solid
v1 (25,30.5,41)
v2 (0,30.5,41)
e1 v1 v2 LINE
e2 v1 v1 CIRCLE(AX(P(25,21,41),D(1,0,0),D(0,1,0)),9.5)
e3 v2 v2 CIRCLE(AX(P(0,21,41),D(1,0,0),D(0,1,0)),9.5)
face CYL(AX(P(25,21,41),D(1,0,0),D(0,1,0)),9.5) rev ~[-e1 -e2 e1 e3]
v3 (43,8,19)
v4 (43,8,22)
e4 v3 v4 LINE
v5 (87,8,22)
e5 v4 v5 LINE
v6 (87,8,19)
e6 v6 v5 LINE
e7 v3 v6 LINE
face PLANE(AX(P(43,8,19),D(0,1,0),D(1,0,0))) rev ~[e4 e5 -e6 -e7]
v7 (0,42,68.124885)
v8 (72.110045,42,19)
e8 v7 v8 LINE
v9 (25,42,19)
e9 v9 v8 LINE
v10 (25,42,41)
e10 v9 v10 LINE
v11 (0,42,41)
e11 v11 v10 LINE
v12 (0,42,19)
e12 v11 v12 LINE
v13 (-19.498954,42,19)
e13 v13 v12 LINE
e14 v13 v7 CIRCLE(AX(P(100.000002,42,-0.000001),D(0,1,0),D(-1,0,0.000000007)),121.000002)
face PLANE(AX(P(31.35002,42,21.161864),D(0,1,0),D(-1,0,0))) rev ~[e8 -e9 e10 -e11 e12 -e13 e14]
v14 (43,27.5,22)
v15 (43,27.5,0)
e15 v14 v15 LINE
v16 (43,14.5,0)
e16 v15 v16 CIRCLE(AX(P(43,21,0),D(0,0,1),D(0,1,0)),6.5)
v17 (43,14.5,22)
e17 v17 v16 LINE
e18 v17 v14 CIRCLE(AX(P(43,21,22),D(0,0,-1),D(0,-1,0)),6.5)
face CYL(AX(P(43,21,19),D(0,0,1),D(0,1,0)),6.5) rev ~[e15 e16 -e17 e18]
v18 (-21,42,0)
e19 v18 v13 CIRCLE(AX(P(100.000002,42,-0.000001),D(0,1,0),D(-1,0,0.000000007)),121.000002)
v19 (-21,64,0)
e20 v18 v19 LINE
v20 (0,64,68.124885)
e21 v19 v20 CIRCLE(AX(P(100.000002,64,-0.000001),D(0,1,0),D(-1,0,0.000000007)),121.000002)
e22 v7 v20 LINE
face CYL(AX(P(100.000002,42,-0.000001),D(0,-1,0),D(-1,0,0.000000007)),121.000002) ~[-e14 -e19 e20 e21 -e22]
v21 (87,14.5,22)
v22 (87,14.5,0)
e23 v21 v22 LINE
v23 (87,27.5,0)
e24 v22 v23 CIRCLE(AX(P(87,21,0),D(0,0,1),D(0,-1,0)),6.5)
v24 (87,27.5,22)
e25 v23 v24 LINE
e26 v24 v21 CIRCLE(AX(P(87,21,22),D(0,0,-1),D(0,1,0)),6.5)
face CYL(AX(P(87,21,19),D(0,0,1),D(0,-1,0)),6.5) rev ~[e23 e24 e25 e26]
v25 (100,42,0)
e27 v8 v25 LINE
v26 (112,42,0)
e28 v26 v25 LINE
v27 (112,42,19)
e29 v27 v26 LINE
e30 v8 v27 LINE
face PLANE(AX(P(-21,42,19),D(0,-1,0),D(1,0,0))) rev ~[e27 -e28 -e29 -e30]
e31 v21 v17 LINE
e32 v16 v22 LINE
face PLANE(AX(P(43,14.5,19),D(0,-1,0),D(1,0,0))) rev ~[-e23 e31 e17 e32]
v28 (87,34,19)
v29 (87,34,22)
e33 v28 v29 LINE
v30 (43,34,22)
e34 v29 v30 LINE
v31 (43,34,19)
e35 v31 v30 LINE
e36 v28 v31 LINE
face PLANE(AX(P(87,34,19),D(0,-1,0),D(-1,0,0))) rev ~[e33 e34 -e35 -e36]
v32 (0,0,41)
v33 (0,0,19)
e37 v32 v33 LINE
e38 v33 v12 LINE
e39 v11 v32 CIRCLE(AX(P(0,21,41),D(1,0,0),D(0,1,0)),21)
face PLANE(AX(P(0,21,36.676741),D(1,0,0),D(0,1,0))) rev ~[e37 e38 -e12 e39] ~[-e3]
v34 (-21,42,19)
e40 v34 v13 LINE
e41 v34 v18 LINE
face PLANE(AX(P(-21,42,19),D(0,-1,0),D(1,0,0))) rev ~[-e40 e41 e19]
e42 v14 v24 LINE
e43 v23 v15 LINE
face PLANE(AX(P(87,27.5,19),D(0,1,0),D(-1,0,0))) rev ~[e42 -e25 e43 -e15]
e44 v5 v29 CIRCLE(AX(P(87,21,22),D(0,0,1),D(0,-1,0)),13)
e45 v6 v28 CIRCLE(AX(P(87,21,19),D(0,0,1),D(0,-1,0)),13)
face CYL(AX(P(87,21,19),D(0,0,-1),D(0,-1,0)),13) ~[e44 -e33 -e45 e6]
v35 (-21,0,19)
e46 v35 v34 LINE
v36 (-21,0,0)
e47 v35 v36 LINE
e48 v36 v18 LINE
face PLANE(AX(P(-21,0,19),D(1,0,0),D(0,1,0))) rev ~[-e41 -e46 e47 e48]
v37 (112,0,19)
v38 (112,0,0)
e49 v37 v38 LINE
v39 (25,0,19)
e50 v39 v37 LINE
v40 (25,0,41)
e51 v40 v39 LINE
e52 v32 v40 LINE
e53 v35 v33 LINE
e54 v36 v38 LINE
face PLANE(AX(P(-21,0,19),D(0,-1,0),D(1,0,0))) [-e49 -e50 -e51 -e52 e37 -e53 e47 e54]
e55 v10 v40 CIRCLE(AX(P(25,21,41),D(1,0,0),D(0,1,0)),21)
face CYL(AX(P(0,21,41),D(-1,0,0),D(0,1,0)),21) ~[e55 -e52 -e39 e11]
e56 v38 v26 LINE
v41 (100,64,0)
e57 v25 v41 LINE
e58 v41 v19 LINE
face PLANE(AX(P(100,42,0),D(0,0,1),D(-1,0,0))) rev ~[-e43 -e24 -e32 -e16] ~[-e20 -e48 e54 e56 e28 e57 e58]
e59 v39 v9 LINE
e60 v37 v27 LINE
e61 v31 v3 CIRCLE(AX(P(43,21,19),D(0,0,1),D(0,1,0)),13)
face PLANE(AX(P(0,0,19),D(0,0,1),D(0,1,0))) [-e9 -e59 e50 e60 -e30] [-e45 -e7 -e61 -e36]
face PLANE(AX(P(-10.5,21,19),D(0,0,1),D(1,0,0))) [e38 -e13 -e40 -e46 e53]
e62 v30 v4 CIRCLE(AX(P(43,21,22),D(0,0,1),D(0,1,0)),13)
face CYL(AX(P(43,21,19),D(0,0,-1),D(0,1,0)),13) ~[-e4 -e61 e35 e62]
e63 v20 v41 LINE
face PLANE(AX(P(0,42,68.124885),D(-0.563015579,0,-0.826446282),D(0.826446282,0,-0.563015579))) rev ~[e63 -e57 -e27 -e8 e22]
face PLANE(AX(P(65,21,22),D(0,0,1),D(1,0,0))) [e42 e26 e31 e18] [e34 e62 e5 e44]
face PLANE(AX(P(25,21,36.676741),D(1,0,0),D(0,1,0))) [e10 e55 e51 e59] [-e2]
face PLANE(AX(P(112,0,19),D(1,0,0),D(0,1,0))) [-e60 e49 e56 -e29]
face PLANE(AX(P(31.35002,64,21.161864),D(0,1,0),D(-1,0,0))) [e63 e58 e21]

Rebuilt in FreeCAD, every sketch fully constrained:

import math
import FreeCAD as App
import Part
import Sketcher

doc = App.newDocument("Part")
body = doc.addObject("PartDesign::Body", "Body")

sketch1 = body.newObject("Sketcher::SketchObject", "Sketch")
sketch1.AttachmentSupport = (doc.getObject("YZ_Plane"), [""])
sketch1.MapMode = "FlatFace"
sketch1.addGeometry([
    Part.LineSegment(App.Vector(0, 19, 0), App.Vector(0, 0, 0)),
    Part.LineSegment(App.Vector(0, 0, 0), App.Vector(42, 0, 0)),
    Part.LineSegment(App.Vector(42, 0, 0), App.Vector(42, 19, 0)),
    Part.LineSegment(App.Vector(42, 19, 0), App.Vector(0, 19, 0)),
], False)
sketch1.addConstraint([
    Sketcher.Constraint("Coincident", 0, 2, 1, 1),
    Sketcher.Constraint("Coincident", 1, 2, 2, 1),
    Sketcher.Constraint("Coincident", 2, 2, 3, 1),
    Sketcher.Constraint("Coincident", 3, 2, 0, 1),
    Sketcher.Constraint("Vertical", 0),
    Sketcher.Constraint("Horizontal", 1),
    Sketcher.Constraint("Vertical", 2),
    Sketcher.Constraint("Horizontal", 3),
    Sketcher.Constraint("Coincident", 0, 2, -1, 1),
    Sketcher.Constraint("DistanceX", 1, 1, 1, 2, 42.0),
    Sketcher.Constraint("DistanceY", 0, 2, 0, 1, 19.0),
])
pad1 = body.newObject("PartDesign::Pad", "Pad")
pad1.Profile = sketch1
pad1.Length = 133

sketch2 = body.newObject("Sketcher::SketchObject", "Sketch001")
sketch2.AttachmentSupport = (doc.getObject("YZ_Plane"), [""])
sketch2.MapMode = "FlatFace"
sketch2.addGeometry([
    Part.LineSegment(App.Vector(0, 41, 0), App.Vector(0, 19, 0)),
    Part.LineSegment(App.Vector(0, 19, 0), App.Vector(42, 19, 0)),
    Part.LineSegment(App.Vector(42, 19, 0), App.Vector(42, 41, 0)),
    Part.ArcOfCircle(Part.Circle(App.Vector(21, 41, 0), App.Vector(0, 0, 1), 21), math.radians(0), math.radians(180)),
], False)
sketch2.addConstraint([
    Sketcher.Constraint("Coincident", 0, 2, 1, 1),
    Sketcher.Constraint("Coincident", 1, 2, 2, 1),
    Sketcher.Constraint("Tangent", 2, 2, 3, 1),
    Sketcher.Constraint("Tangent", 3, 2, 0, 1),
    Sketcher.Constraint("Vertical", 0),
    Sketcher.Constraint("Horizontal", 1),
    Sketcher.Constraint("Vertical", 2),
    Sketcher.Constraint("PointOnObject", 0, 2, -2),
    Sketcher.Constraint("Radius", 3, 21.0),
    Sketcher.Constraint("DistanceY", 0, 2, 0, 1, 22.0),
    Sketcher.Constraint("DistanceY", -1, 1, 3, 3, 41.0),
])
pad2 = body.newObject("PartDesign::Pad", "Pad001")
pad2.Profile = sketch2
pad2.Length = 25

sketch3 = body.newObject("Sketcher::SketchObject", "Sketch002")
sketch3.AttachmentSupport = (doc.getObject("XY_Plane"), [""])
sketch3.MapMode = "FlatFace"
sketch3.AttachmentOffset = App.Placement(App.Vector(0, 0, 19), App.Rotation())
sketch3.addGeometry([
    Part.LineSegment(App.Vector(-21, 42, 0), App.Vector(-21, 0, 0)),
    Part.LineSegment(App.Vector(-21, 0, 0), App.Vector(0, 0, 0)),
    Part.LineSegment(App.Vector(0, 0, 0), App.Vector(0, 42, 0)),
    Part.LineSegment(App.Vector(0, 42, 0), App.Vector(-21, 42, 0)),
], False)
sketch3.addConstraint([
    Sketcher.Constraint("Coincident", 0, 2, 1, 1),
    Sketcher.Constraint("Coincident", 1, 2, 2, 1),
    Sketcher.Constraint("Coincident", 2, 2, 3, 1),
    Sketcher.Constraint("Coincident", 3, 2, 0, 1),
    Sketcher.Constraint("Vertical", 0),
    Sketcher.Constraint("Horizontal", 1),
    Sketcher.Constraint("Vertical", 2),
    Sketcher.Constraint("Horizontal", 3),
    Sketcher.Constraint("Coincident", 1, 2, -1, 1),
    Sketcher.Constraint("DistanceX", 1, 1, 1, 2, 21.0),
    Sketcher.Constraint("DistanceY", 0, 2, 0, 1, 42.0),
])
pad3 = body.newObject("PartDesign::Pad", "Pad002")
pad3.Profile = sketch3
pad3.Length = 19
pad3.Reversed = True

sketch4 = body.newObject("Sketcher::SketchObject", "Sketch003")
sketch4.AttachmentSupport = (doc.getObject("YZ_Plane"), [""])
sketch4.MapMode = "FlatFace"
sketch4.AttachmentOffset = App.Placement(App.Vector(0, 0, 25), App.Rotation())
sketch4.addGeometry(Part.Circle(App.Vector(21, 41, 0), App.Vector(0, 0, 1), 10), False)
sketch4.addConstraint([
    Sketcher.Constraint("Diameter", 0, 19.0),
    Sketcher.Constraint("DistanceX", -1, 1, 0, 3, 21.0),
    Sketcher.Constraint("DistanceY", -1, 1, 0, 3, 41.0),
])
pocket1 = body.newObject("PartDesign::Pocket", "Pocket")
pocket1.Profile = sketch4
pocket1.Type = "ThroughAll"

sketch5 = body.newObject("Sketcher::SketchObject", "Sketch004")
sketch5.AttachmentSupport = (doc.getObject("XY_Plane"), [""])
sketch5.MapMode = "FlatFace"
sketch5.AttachmentOffset = App.Placement(App.Vector(0, 0, 19), App.Rotation())
sketch5.addGeometry([
    Part.LineSegment(App.Vector(112, 42, 0), App.Vector(112, 0, 0)),
    Part.LineSegment(App.Vector(112, 0, 0), App.Vector(133, 0, 0)),
    Part.LineSegment(App.Vector(133, 0, 0), App.Vector(133, 42, 0)),
    Part.LineSegment(App.Vector(133, 42, 0), App.Vector(112, 42, 0)),
], False)
sketch5.addConstraint([
    Sketcher.Constraint("Coincident", 0, 2, 1, 1),
    Sketcher.Constraint("Coincident", 1, 2, 2, 1),
    Sketcher.Constraint("Coincident", 2, 2, 3, 1),
    Sketcher.Constraint("Coincident", 3, 2, 0, 1),
    Sketcher.Constraint("Vertical", 0),
    Sketcher.Constraint("Horizontal", 1),
    Sketcher.Constraint("Vertical", 2),
    Sketcher.Constraint("Horizontal", 3),
    Sketcher.Constraint("PointOnObject", 0, 2, -1),
    Sketcher.Constraint("DistanceX", 1, 1, 1, 2, 21.0),
    Sketcher.Constraint("DistanceY", 0, 2, 0, 1, 42.0),
    Sketcher.Constraint("DistanceX", -1, 1, 0, 2, 112.0),
])
pocket2 = body.newObject("PartDesign::Pocket", "Pocket001")
pocket2.Profile = sketch5
pocket2.Type = "ThroughAll"

sketch6 = body.newObject("Sketcher::SketchObject", "Sketch005")
sketch6.AttachmentSupport = (doc.getObject("XY_Plane"), [""])
sketch6.MapMode = "FlatFace"
sketch6.AttachmentOffset = App.Placement(App.Vector(0, 0, 19), App.Rotation())
sketch6.addGeometry([
    Part.LineSegment(App.Vector(87, 34, 0), App.Vector(43, 34, 0)),
    Part.ArcOfCircle(Part.Circle(App.Vector(43, 21, 0), App.Vector(0, 0, 1), 13), math.radians(90), math.radians(270)),
    Part.LineSegment(App.Vector(43, 8, 0), App.Vector(87, 8, 0)),
    Part.ArcOfCircle(Part.Circle(App.Vector(87, 21, 0), App.Vector(0, 0, 1), 13), math.radians(-90), math.radians(90)),
    Part.LineSegment(App.Vector(87, 14, 0), App.Vector(43, 14, 0)),
    Part.ArcOfCircle(Part.Circle(App.Vector(43, 21, 0), App.Vector(0, 0, 1), 6), math.radians(90), math.radians(270)),
    Part.LineSegment(App.Vector(43, 28, 0), App.Vector(87, 28, 0)),
    Part.ArcOfCircle(Part.Circle(App.Vector(87, 21, 0), App.Vector(0, 0, 1), 6), math.radians(-90), math.radians(90)),
], False)
sketch6.addConstraint([
    Sketcher.Constraint("Tangent", 0, 2, 1, 1),
    Sketcher.Constraint("Tangent", 1, 2, 2, 1),
    Sketcher.Constraint("Tangent", 2, 2, 3, 1),
    Sketcher.Constraint("Tangent", 3, 2, 0, 1),
    Sketcher.Constraint("Tangent", 4, 2, 5, 2),
    Sketcher.Constraint("Tangent", 5, 1, 6, 1),
    Sketcher.Constraint("Tangent", 6, 2, 7, 2),
    Sketcher.Constraint("Tangent", 7, 1, 4, 1),
    Sketcher.Constraint("Horizontal", 0),
    Sketcher.Constraint("Horizontal", 2),
    Sketcher.Constraint("Horizontal", 4),
    Sketcher.Constraint("Horizontal", 6),
    Sketcher.Constraint("Coincident", 5, 3, 1, 3),
    Sketcher.Constraint("Vertical", 7, 3, 2, 2),
    Sketcher.Constraint("Radius", 1, 13.0),
    Sketcher.Constraint("Radius", 5, 6.5),
    Sketcher.Constraint("DistanceX", 0, 2, 0, 1, 44.0),
    Sketcher.Constraint("DistanceX", -1, 1, 1, 3, 43.0),
    Sketcher.Constraint("DistanceY", -1, 1, 1, 3, 21.0),
])
pad4 = body.newObject("PartDesign::Pad", "Pad003")
pad4.Profile = sketch6
pad4.Length = 3

sketch7 = body.newObject("Sketcher::SketchObject", "Sketch006")
sketch7.AttachmentSupport = (doc.getObject("XY_Plane"), [""])
sketch7.MapMode = "FlatFace"
sketch7.AttachmentOffset = App.Placement(App.Vector(0, 0, 19), App.Rotation())
sketch7.addGeometry([
    Part.LineSegment(App.Vector(87, 28, 0), App.Vector(43, 28, 0)),
    Part.ArcOfCircle(Part.Circle(App.Vector(43, 21, 0), App.Vector(0, 0, 1), 6), math.radians(90), math.radians(270)),
    Part.LineSegment(App.Vector(43, 14, 0), App.Vector(87, 14, 0)),
    Part.ArcOfCircle(Part.Circle(App.Vector(87, 21, 0), App.Vector(0, 0, 1), 6), math.radians(-90), math.radians(90)),
], False)
sketch7.addConstraint([
    Sketcher.Constraint("Tangent", 0, 2, 1, 1),
    Sketcher.Constraint("Tangent", 1, 2, 2, 1),
    Sketcher.Constraint("Tangent", 2, 2, 3, 1),
    Sketcher.Constraint("Tangent", 3, 2, 0, 1),
    Sketcher.Constraint("Horizontal", 0),
    Sketcher.Constraint("Horizontal", 2),
    Sketcher.Constraint("Radius", 1, 6.5),
    Sketcher.Constraint("DistanceX", 0, 2, 0, 1, 44.0),
    Sketcher.Constraint("DistanceX", -1, 1, 1, 3, 43.0),
    Sketcher.Constraint("DistanceY", -1, 1, 1, 3, 21.0),
])
pocket3 = body.newObject("PartDesign::Pocket", "Pocket002")
pocket3.Profile = sketch7
pocket3.Type = "ThroughAll"

sketch8 = body.newObject("Sketcher::SketchObject", "Sketch007")
sketch8.AttachmentSupport = (doc.getObject("XZ_Plane"), [""])
sketch8.MapMode = "FlatFace"
sketch8.AttachmentOffset = App.Placement(App.Vector(0, 0, -42), App.Rotation())
sketch8.addGeometry([
    Part.LineSegment(App.Vector(100, 0, 0), App.Vector(-21, 0, 0)),
    Part.ArcOfCircle(Part.Circle(App.Vector(100, 0, 0), App.Vector(0, 0, 1), 121), math.radians(146), math.radians(180)),
    Part.LineSegment(App.Vector(0, 68, 0), App.Vector(100, 0, 0)),
], False)
sketch8.addConstraint([
    Sketcher.Constraint("Coincident", 0, 2, 1, 2),
    Sketcher.Constraint("Coincident", 1, 1, 2, 1),
    Sketcher.Constraint("Coincident", 2, 2, 0, 1),
    Sketcher.Constraint("Horizontal", 0),
    Sketcher.Constraint("Coincident", 2, 2, 1, 3),
    Sketcher.Constraint("PointOnObject", 1, 3, -1),
    Sketcher.Constraint("PointOnObject", 1, 1, -2),
    Sketcher.Constraint("Radius", 1, 121.000002),
    Sketcher.Constraint("DistanceX", -1, 1, 1, 3, 100.000002),
])
pad5 = body.newObject("PartDesign::Pad", "Pad004")
pad5.Profile = sketch8
pad5.Length = 22
pad5.Reversed = True

doc.recompute()
